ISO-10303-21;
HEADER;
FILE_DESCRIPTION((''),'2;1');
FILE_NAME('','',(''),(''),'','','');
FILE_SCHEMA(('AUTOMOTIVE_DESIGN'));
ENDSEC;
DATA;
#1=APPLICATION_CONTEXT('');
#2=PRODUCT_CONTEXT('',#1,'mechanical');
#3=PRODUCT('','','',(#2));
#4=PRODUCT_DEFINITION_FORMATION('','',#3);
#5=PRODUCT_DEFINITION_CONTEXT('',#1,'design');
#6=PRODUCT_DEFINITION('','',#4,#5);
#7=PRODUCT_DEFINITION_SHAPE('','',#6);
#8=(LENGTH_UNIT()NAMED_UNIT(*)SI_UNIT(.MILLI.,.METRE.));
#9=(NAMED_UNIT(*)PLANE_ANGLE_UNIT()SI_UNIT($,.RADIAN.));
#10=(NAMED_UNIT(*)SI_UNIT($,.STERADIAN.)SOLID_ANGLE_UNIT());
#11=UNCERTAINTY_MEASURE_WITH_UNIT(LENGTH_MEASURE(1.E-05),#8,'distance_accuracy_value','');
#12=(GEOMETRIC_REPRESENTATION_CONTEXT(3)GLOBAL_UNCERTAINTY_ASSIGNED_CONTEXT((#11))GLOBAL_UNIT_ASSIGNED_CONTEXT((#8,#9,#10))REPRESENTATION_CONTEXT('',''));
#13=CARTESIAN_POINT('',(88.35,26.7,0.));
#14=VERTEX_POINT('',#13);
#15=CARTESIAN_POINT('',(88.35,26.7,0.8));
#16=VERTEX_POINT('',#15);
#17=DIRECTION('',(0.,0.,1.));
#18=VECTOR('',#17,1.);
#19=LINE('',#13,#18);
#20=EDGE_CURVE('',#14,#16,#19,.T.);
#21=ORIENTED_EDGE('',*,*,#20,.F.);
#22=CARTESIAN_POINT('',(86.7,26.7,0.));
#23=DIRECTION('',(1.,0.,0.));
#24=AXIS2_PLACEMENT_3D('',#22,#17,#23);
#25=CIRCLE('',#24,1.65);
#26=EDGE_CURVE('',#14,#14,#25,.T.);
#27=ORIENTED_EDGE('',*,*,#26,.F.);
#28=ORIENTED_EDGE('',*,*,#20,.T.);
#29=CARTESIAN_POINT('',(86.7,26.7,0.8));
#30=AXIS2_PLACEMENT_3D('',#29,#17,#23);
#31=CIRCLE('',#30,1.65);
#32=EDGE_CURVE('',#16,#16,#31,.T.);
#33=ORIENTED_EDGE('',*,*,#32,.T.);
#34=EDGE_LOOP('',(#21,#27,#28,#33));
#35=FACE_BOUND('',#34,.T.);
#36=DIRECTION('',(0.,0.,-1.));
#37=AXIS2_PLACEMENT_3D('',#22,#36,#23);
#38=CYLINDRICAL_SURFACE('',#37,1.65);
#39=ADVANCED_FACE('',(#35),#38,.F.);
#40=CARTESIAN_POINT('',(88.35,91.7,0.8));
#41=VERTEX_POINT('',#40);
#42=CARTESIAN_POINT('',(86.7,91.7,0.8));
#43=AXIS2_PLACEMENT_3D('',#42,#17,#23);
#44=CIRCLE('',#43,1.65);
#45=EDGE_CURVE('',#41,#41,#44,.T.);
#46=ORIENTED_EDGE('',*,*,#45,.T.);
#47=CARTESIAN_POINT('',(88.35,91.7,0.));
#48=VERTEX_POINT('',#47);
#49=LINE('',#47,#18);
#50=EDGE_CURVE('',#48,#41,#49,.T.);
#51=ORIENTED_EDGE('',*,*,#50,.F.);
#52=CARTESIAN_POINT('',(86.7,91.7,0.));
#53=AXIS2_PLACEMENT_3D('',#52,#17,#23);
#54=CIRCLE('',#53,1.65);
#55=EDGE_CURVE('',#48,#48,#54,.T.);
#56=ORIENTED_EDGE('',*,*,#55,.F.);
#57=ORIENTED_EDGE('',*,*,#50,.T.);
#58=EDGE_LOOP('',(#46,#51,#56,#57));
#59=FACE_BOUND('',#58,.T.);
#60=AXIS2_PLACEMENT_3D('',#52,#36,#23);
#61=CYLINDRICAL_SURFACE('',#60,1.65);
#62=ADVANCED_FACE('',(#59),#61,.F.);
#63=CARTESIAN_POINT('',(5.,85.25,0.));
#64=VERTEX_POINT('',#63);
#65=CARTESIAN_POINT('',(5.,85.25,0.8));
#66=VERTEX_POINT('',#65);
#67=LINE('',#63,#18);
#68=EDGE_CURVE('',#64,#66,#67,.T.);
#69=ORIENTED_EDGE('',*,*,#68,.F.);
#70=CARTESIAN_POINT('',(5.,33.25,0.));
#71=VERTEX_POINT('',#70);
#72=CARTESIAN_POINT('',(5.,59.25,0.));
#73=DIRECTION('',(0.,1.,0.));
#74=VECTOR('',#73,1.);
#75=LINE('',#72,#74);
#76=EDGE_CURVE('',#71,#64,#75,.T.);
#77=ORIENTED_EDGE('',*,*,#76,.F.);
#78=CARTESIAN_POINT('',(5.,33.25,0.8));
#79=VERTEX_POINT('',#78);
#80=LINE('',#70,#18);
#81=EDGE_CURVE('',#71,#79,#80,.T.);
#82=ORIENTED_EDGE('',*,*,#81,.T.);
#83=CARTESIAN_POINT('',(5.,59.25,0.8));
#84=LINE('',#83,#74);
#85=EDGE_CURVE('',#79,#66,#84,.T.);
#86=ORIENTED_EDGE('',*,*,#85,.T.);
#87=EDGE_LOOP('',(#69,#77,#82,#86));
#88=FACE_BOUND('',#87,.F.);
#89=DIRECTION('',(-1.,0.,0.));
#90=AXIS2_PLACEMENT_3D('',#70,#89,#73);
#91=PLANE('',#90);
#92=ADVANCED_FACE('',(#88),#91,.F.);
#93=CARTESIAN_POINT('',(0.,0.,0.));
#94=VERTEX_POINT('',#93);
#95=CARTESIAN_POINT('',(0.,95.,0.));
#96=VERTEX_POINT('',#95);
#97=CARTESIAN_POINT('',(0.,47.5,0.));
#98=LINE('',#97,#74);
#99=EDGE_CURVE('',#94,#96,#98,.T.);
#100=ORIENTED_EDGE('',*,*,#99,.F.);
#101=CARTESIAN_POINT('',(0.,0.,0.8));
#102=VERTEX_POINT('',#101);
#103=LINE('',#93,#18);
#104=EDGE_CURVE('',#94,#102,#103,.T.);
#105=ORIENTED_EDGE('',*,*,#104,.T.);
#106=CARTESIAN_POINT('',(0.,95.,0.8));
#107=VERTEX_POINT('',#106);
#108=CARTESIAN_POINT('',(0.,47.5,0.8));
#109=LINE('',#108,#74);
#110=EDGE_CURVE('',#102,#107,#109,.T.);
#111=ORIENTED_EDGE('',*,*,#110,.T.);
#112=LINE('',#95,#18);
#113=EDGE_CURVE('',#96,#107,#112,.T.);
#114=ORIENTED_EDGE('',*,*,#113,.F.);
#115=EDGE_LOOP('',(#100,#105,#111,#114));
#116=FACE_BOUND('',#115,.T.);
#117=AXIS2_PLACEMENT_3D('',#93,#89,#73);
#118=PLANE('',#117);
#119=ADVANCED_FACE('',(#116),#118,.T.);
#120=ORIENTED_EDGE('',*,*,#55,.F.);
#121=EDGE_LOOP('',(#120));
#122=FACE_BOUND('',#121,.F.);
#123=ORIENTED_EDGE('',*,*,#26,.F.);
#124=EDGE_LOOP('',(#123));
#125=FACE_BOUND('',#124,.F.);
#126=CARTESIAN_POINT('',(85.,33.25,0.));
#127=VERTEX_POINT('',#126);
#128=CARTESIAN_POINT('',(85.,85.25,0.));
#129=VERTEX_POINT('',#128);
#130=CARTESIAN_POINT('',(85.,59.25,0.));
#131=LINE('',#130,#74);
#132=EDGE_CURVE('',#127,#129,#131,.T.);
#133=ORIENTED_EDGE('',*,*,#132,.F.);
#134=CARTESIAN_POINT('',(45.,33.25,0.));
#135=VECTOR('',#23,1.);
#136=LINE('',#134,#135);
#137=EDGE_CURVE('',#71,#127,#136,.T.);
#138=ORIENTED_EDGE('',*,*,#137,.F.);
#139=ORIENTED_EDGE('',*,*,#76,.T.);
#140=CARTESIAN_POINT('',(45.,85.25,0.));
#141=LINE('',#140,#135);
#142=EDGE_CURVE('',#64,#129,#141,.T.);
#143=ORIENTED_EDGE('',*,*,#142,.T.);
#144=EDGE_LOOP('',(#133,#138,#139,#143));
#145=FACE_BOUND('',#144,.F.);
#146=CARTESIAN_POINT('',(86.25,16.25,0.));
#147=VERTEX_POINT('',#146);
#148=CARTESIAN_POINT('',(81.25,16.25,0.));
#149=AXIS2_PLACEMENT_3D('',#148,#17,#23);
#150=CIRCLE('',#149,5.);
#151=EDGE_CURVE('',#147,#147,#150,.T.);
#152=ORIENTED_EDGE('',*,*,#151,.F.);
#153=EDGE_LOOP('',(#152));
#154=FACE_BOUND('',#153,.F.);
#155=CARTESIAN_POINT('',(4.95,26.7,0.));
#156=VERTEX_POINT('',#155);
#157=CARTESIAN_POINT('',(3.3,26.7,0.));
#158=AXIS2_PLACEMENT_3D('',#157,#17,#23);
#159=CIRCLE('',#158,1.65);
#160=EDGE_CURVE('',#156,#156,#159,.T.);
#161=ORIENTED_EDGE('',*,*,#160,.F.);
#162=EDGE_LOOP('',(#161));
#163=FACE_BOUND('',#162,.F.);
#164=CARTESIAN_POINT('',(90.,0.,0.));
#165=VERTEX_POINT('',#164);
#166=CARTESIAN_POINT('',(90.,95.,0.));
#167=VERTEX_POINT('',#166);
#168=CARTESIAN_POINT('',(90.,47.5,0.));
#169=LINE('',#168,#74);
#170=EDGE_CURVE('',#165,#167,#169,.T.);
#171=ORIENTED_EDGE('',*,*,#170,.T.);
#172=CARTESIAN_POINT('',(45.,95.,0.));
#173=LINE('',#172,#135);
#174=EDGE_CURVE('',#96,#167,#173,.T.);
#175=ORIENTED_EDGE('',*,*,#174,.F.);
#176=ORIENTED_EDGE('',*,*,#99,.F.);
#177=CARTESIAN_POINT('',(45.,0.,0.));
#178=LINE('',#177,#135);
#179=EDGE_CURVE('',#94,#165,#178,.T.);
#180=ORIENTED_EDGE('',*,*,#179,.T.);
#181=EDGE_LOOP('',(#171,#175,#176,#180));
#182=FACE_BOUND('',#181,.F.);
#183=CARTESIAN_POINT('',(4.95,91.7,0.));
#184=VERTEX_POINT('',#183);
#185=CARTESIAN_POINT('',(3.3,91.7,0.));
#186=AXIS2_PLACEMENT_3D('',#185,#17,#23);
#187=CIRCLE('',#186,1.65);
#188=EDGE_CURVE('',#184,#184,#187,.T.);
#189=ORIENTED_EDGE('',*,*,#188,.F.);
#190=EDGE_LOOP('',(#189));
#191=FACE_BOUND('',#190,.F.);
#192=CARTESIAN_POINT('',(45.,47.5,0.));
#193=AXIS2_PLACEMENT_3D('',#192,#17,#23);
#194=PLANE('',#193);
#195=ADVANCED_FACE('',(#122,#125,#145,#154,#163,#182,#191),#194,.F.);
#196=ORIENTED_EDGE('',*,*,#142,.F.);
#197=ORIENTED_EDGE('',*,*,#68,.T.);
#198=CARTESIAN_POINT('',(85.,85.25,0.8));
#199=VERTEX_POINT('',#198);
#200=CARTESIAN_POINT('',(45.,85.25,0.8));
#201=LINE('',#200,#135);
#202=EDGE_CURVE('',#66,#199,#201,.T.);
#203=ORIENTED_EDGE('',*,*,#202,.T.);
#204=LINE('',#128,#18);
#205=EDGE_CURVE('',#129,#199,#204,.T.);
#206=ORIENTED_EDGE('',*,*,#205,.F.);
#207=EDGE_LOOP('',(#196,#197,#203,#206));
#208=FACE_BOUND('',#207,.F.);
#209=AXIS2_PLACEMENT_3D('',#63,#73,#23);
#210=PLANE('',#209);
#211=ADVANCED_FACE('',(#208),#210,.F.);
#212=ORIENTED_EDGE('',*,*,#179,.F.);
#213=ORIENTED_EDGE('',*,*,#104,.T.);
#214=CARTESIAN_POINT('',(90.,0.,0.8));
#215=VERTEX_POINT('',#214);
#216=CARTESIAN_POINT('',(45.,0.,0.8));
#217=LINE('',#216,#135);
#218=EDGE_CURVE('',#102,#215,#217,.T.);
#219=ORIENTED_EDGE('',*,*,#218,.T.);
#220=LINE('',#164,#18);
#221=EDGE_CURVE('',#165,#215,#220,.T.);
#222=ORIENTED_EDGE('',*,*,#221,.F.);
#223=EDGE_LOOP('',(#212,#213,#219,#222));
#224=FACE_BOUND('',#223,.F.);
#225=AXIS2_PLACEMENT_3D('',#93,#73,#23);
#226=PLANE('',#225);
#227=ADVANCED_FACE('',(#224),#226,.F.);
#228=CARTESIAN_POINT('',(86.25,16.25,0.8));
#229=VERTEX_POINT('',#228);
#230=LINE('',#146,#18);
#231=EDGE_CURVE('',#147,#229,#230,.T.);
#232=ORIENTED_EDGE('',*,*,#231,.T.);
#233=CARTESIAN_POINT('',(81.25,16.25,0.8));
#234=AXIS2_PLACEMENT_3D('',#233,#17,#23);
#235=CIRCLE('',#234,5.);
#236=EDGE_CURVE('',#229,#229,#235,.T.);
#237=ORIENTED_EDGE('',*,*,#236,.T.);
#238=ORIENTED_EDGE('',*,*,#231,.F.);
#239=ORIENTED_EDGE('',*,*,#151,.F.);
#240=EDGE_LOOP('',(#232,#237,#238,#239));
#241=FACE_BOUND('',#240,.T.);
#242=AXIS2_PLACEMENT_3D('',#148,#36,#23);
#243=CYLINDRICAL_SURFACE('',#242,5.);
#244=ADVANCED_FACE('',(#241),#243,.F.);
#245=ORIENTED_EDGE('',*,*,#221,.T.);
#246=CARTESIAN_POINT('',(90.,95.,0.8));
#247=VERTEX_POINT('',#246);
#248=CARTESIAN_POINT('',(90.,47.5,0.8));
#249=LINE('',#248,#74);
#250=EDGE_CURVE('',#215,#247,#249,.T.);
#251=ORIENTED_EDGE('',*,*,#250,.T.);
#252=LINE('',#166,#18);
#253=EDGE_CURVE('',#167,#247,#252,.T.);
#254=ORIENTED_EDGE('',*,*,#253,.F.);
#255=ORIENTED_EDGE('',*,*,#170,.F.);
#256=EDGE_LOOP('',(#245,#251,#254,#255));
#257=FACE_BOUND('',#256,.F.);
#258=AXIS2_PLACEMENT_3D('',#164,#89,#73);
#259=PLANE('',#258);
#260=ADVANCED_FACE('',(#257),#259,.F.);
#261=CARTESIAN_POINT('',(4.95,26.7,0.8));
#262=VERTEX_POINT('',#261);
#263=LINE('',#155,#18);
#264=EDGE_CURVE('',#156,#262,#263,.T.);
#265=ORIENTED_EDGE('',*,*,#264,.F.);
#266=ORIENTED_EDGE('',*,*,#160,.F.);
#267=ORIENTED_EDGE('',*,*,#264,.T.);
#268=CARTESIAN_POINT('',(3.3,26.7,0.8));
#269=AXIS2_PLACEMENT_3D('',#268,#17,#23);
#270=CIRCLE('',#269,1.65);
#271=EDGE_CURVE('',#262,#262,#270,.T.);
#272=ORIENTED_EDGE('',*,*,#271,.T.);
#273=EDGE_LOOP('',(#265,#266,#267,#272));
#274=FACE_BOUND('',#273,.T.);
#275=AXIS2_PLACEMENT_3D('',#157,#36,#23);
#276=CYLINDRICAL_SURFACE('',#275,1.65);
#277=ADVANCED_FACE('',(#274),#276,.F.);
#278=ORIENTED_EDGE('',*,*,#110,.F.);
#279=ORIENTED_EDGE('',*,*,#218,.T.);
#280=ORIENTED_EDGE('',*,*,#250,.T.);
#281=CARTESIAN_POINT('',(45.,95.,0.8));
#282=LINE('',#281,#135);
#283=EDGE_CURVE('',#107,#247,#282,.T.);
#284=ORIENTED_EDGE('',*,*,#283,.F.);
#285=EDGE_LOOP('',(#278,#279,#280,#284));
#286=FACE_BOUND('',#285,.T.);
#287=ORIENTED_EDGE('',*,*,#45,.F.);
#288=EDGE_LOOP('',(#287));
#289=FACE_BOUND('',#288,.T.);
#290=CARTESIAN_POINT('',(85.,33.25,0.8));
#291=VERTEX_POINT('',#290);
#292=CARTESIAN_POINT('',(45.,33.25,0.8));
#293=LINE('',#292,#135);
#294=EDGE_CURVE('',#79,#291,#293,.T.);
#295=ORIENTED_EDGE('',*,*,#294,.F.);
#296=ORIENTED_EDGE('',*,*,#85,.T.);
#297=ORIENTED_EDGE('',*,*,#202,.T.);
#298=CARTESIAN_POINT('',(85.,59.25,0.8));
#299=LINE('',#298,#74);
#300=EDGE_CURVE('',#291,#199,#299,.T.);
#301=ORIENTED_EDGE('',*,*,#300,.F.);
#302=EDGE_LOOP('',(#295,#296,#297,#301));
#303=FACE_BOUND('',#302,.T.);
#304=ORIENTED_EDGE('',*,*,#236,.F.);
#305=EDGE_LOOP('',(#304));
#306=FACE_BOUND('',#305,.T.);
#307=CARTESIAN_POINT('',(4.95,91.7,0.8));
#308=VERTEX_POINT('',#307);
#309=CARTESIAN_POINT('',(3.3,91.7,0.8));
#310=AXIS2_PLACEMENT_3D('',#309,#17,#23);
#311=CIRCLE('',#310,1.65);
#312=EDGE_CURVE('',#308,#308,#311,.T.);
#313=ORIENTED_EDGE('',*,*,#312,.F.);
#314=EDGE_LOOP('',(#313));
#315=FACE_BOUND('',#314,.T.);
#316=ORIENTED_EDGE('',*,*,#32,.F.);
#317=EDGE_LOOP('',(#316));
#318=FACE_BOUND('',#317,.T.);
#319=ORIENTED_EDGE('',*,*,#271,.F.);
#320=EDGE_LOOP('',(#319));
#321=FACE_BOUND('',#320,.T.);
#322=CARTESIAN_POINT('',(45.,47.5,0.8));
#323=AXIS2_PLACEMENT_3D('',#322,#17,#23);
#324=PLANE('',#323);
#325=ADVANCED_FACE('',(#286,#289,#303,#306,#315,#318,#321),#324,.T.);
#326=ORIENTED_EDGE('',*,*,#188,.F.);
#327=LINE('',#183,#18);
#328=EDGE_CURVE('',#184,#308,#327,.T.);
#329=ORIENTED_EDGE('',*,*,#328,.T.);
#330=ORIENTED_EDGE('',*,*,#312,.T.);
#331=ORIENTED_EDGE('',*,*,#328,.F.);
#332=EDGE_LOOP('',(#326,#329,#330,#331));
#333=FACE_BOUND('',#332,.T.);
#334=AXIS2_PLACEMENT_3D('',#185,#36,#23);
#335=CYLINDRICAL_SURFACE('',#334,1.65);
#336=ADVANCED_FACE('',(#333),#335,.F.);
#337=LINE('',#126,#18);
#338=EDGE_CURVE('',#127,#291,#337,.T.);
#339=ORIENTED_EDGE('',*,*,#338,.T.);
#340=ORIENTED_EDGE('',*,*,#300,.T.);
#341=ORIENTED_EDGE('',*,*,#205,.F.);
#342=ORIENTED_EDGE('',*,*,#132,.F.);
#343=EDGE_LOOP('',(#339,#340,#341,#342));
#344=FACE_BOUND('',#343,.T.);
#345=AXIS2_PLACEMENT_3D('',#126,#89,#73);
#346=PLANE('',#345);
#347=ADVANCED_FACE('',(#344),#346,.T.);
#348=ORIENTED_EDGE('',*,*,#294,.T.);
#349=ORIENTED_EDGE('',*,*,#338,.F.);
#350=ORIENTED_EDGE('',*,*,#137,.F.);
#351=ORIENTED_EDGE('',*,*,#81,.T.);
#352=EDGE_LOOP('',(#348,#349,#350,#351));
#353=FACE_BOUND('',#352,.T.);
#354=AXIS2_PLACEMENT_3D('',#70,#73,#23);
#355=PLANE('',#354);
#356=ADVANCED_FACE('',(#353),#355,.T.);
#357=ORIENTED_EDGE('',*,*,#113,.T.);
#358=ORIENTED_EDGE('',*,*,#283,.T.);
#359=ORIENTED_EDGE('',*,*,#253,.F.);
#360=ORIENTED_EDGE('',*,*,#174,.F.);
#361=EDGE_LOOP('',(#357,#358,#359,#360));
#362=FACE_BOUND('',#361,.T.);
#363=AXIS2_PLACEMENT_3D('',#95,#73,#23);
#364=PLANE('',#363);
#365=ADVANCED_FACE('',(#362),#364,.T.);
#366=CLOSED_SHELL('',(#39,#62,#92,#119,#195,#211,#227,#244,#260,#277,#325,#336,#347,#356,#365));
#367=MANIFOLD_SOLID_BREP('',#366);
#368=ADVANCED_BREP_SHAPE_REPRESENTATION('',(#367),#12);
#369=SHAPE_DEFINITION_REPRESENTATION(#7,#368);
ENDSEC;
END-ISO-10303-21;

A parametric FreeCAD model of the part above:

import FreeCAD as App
import Part
import Sketcher

V = App.Vector

doc = App.newDocument("Part")
body = doc.addObject("PartDesign::Body", "Body")

sketch1 = doc.addObject("Sketcher::SketchObject", "Sketch")
body.addObject(sketch1)
sketch1.AttachmentSupport = (doc.XY_Plane, [""])
sketch1.MapMode = "FlatFace"
sketch1.addGeometry([
    Part.LineSegment(V(0, 95, 0), V(0, 0, 0)),
    Part.LineSegment(V(0, 0, 0), V(90, 0, 0)),
    Part.LineSegment(V(90, 0, 0), V(90, 95, 0)),
    Part.LineSegment(V(90, 95, 0), V(0, 95, 0)),
    Part.Circle(V(3.3, 26.7, 0), V(0, 0, 1), 1.65),
    Part.Circle(V(81.25, 16.25, 0), V(0, 0, 1), 5),
    Part.Circle(V(86.7, 26.7, 0), V(0, 0, 1), 1.65),
    Part.Circle(V(3.3, 91.7, 0), V(0, 0, 1), 1.65),
    Part.LineSegment(V(85, 33.25, 0), V(5, 33.25, 0)),
    Part.LineSegment(V(5, 33.25, 0), V(5, 85.25, 0)),
    Part.LineSegment(V(5, 85.25, 0), V(85, 85.25, 0)),
    Part.LineSegment(V(85, 85.25, 0), V(85, 33.25, 0)),
    Part.Circle(V(86.7, 91.7, 0), V(0, 0, 1), 1.65),
], False)
sketch1.addConstraint([
    Sketcher.Constraint("Coincident", 0, 2, 1, 1),
    Sketcher.Constraint("Coincident", 1, 2, 2, 1),
    Sketcher.Constraint("Coincident", 2, 2, 3, 1),
    Sketcher.Constraint("Coincident", 3, 2, 0, 1),
    Sketcher.Constraint("Coincident", 8, 2, 9, 1),
    Sketcher.Constraint("Coincident", 9, 2, 10, 1),
    Sketcher.Constraint("Coincident", 10, 2, 11, 1),
    Sketcher.Constraint("Coincident", 11, 2, 8, 1),
    Sketcher.Constraint("Vertical", 0),
    Sketcher.Constraint("Horizontal", 1),
    Sketcher.Constraint("Vertical", 2),
    Sketcher.Constraint("Horizontal", 3),
    Sketcher.Constraint("Horizontal", 8),
    Sketcher.Constraint("Vertical", 9),
    Sketcher.Constraint("Horizontal", 10),
    Sketcher.Constraint("Vertical", 11),
    Sketcher.Constraint("Coincident", 0, 2, -1, 1),
    Sketcher.Constraint("Equal", 4, 6),
    Sketcher.Constraint("Equal", 6, 7),
    Sketcher.Constraint("Equal", 7, 12),
    Sketcher.Constraint("Horizontal", 4, 3, 6, 3),
    Sketcher.Constraint("Horizontal", 7, 3, 12, 3),
    Sketcher.Constraint("Vertical", 4, 3, 7, 3),
    Sketcher.Constraint("Vertical", 6, 3, 12, 3),
    Sketcher.Constraint("Diameter", 5, 10.0),
    Sketcher.Constraint("Diameter", 4, 3.3),
    Sketcher.Constraint("DistanceX", 1, 1, 1, 2, 90.0),
    Sketcher.Constraint("DistanceX", 8, 2, 8, 1, 80.0),
    Sketcher.Constraint("DistanceY", 0, 2, 0, 1, 95.0),
    Sketcher.Constraint("DistanceY", 9, 1, 9, 2, 52.0),
    Sketcher.Constraint("DistanceX", -1, 1, 8, 2, 5.0),
    Sketcher.Constraint("DistanceY", 4, 3, 7, 3, 65.0),
    Sketcher.Constraint("DistanceY", 5, 3, 8, 2, 17.0),
    Sketcher.Constraint("DistanceX", -1, 1, 4, 3, 3.3),
    Sketcher.Constraint("DistanceY", -1, 1, 4, 3, 26.7),
    Sketcher.Constraint("DistanceX", -1, 1, 6, 3, 86.7),
    Sketcher.Constraint("DistanceX", -1, 1, 5, 3, 81.25),
    Sketcher.Constraint("DistanceY", -1, 1, 5, 3, 16.25),
])
pad1 = doc.addObject("PartDesign::Pad", "Pad")
body.addObject(pad1)
pad1.Profile = sketch1
pad1.Length = 0.8

doc.recompute()
